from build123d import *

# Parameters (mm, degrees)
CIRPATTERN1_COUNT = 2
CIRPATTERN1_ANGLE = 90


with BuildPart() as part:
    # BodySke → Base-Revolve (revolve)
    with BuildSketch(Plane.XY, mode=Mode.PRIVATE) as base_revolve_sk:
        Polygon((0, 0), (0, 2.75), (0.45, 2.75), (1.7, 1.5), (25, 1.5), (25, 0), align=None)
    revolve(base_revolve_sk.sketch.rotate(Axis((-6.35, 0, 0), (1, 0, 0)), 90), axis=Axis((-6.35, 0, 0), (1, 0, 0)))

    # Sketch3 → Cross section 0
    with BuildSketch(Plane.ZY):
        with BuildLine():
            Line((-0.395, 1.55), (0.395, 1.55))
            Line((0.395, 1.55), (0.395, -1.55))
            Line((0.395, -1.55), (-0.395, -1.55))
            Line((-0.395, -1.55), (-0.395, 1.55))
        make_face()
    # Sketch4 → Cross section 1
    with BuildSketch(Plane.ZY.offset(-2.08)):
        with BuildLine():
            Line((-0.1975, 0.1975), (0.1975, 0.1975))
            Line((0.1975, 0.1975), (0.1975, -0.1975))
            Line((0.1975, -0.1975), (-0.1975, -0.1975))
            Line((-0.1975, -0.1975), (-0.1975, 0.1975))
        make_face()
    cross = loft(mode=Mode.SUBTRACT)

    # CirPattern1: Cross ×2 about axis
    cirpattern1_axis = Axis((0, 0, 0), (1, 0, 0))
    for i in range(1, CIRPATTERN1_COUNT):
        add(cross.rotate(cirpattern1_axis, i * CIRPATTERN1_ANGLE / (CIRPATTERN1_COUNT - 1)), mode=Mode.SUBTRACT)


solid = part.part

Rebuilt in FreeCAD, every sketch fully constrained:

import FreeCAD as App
import Part
import Sketcher

V = App.Vector
Q = App.Units.Quantity

doc = App.newDocument("Part")
body = doc.addObject("PartDesign::Body", "Body")

# Sketch on XY plane
sketch1 = body.newObject("Sketcher::SketchObject", "Sketch")
sketch1.AttachmentSupport = (doc.getObject("XY_Plane"), [""])
sketch1.MapMode = "FlatFace"
sketch1.addGeometry([
    Part.LineSegment(V(0, 2.75, 0), V(0, 0, 0)),  # 0
    Part.LineSegment(V(0, 0, 0), V(25, 0, 0)),  # 1
    Part.LineSegment(V(25, 0, 0), V(25, 1.5, 0)),  # 2
    Part.LineSegment(V(25, 1.5, 0), V(1.7, 1.5, 0)),  # 3
    Part.LineSegment(V(1.7, 1.5, 0), V(0.45, 2.75, 0)),  # 4
    Part.LineSegment(V(0.45, 2.75, 0), V(0, 2.75, 0)),  # 5
], False)
sketch1.addConstraint([
    Sketcher.Constraint("Coincident", 0, 2, 1, 1),
    Sketcher.Constraint("Coincident", 1, 2, 2, 1),
    Sketcher.Constraint("Coincident", 2, 2, 3, 1),
    Sketcher.Constraint("Coincident", 3, 2, 4, 1),
    Sketcher.Constraint("Coincident", 4, 2, 5, 1),
    Sketcher.Constraint("Coincident", 5, 2, 0, 1),
    Sketcher.Constraint("Vertical", 0),
    Sketcher.Constraint("Horizontal", 1),
    Sketcher.Constraint("Vertical", 2),
    Sketcher.Constraint("Horizontal", 3),
    Sketcher.Constraint("Horizontal", 5),
    Sketcher.Constraint("Coincident", 0, 2, -1, 1),
    Sketcher.Constraint("DistanceX", 1, 1, 1, 2, 25.0),
    Sketcher.Constraint("Angle", 4, Q("135 deg")),
    Sketcher.Constraint("DistanceX", 3, 2, 3, 1, 23.3),
    Sketcher.Constraint("DistanceY", 2, 1, 2, 2, 1.5),
    Sketcher.Constraint("DistanceX", 5, 2, 5, 1, 0.45),
])
revolution = body.newObject("PartDesign::Revolution", "Revolution")
revolution.Profile = sketch1
revolution.ReferenceAxis = (sketch1, ["H_Axis"])
revolution.Angle = 360

# Sketch on YZ plane
sketch2 = body.newObject("Sketcher::SketchObject", "Sketch001")
sketch2.AttachmentSupport = (doc.getObject("YZ_Plane"), [""])
sketch2.MapMode = "FlatFace"
sketch2.addGeometry([
    Part.LineSegment(V(1.6, 0.4, 0), V(1.6, -0.4, 0)),
    Part.LineSegment(V(1.6, -0.4, 0), V(-1.6, -0.4, 0)),
    Part.LineSegment(V(-1.6, -0.4, 0), V(-1.6, 0.4, 0)),
    Part.LineSegment(V(-1.6, 0.4, 0), V(1.6, 0.4, 0)),
], False)
sketch2.addConstraint([
    Sketcher.Constraint("Coincident", 0, 2, 1, 1),
    Sketcher.Constraint("Coincident", 1, 2, 2, 1),
    Sketcher.Constraint("Coincident", 2, 2, 3, 1),
    Sketcher.Constraint("Coincident", 3, 2, 0, 1),
    Sketcher.Constraint("Vertical", 0),
    Sketcher.Constraint("Horizontal", 1),
    Sketcher.Constraint("Vertical", 2),
    Sketcher.Constraint("Horizontal", 3),
    Sketcher.Constraint("Symmetric", 0, 2, 2, 2, -1, 1),
    Sketcher.Constraint("DistanceX", 1, 2, 1, 1, 3.1),
    Sketcher.Constraint("DistanceY", 0, 2, 0, 1, 0.79),
])

# Sketch on YZ plane
sketch3 = body.newObject("Sketcher::SketchObject", "Sketch002")
sketch3.AttachmentSupport = (doc.getObject("YZ_Plane"), [""])
sketch3.MapMode = "FlatFace"
sketch3.AttachmentOffset = App.Placement(V(0, 0, 2.08), App.Rotation())
sketch3.addGeometry([
    Part.LineSegment(V(0.2, 0.2, 0), V(0.2, -0.2, 0)),
    Part.LineSegment(V(0.2, -0.2, 0), V(-0.2, -0.2, 0)),
    Part.LineSegment(V(-0.2, -0.2, 0), V(-0.2, 0.2, 0)),
    Part.LineSegment(V(-0.2, 0.2, 0), V(0.2, 0.2, 0)),
], False)
sketch3.addConstraint([
    Sketcher.Constraint("Coincident", 0, 2, 1, 1),
    Sketcher.Constraint("Coincident", 1, 2, 2, 1),
    Sketcher.Constraint("Coincident", 2, 2, 3, 1),
    Sketcher.Constraint("Coincident", 3, 2, 0, 1),
    Sketcher.Constraint("Vertical", 0),
    Sketcher.Constraint("Horizontal", 1),
    Sketcher.Constraint("Vertical", 2),
    Sketcher.Constraint("Horizontal", 3),
    Sketcher.Constraint("Symmetric", 0, 2, 2, 2, -1, 1),
    Sketcher.Constraint("Equal", 3, 0),
    Sketcher.Constraint("DistanceX", 1, 2, 1, 1, 0.395),
])

subtractiveloft = body.newObject("PartDesign::SubtractiveLoft", "SubtractiveLoft")
subtractiveloft.Profile = sketch2
subtractiveloft.Sections = [sketch3]
doc.recompute()

polarpattern = body.newObject("PartDesign::PolarPattern", "PolarPattern")
polarpattern.Originals = [subtractiveloft]
polarpattern.Axis = (doc.getObject("X_Axis"), [""])
polarpattern.Angle = 90
polarpattern.Occurrences = 2
body.Tip = polarpattern

doc.recompute()
